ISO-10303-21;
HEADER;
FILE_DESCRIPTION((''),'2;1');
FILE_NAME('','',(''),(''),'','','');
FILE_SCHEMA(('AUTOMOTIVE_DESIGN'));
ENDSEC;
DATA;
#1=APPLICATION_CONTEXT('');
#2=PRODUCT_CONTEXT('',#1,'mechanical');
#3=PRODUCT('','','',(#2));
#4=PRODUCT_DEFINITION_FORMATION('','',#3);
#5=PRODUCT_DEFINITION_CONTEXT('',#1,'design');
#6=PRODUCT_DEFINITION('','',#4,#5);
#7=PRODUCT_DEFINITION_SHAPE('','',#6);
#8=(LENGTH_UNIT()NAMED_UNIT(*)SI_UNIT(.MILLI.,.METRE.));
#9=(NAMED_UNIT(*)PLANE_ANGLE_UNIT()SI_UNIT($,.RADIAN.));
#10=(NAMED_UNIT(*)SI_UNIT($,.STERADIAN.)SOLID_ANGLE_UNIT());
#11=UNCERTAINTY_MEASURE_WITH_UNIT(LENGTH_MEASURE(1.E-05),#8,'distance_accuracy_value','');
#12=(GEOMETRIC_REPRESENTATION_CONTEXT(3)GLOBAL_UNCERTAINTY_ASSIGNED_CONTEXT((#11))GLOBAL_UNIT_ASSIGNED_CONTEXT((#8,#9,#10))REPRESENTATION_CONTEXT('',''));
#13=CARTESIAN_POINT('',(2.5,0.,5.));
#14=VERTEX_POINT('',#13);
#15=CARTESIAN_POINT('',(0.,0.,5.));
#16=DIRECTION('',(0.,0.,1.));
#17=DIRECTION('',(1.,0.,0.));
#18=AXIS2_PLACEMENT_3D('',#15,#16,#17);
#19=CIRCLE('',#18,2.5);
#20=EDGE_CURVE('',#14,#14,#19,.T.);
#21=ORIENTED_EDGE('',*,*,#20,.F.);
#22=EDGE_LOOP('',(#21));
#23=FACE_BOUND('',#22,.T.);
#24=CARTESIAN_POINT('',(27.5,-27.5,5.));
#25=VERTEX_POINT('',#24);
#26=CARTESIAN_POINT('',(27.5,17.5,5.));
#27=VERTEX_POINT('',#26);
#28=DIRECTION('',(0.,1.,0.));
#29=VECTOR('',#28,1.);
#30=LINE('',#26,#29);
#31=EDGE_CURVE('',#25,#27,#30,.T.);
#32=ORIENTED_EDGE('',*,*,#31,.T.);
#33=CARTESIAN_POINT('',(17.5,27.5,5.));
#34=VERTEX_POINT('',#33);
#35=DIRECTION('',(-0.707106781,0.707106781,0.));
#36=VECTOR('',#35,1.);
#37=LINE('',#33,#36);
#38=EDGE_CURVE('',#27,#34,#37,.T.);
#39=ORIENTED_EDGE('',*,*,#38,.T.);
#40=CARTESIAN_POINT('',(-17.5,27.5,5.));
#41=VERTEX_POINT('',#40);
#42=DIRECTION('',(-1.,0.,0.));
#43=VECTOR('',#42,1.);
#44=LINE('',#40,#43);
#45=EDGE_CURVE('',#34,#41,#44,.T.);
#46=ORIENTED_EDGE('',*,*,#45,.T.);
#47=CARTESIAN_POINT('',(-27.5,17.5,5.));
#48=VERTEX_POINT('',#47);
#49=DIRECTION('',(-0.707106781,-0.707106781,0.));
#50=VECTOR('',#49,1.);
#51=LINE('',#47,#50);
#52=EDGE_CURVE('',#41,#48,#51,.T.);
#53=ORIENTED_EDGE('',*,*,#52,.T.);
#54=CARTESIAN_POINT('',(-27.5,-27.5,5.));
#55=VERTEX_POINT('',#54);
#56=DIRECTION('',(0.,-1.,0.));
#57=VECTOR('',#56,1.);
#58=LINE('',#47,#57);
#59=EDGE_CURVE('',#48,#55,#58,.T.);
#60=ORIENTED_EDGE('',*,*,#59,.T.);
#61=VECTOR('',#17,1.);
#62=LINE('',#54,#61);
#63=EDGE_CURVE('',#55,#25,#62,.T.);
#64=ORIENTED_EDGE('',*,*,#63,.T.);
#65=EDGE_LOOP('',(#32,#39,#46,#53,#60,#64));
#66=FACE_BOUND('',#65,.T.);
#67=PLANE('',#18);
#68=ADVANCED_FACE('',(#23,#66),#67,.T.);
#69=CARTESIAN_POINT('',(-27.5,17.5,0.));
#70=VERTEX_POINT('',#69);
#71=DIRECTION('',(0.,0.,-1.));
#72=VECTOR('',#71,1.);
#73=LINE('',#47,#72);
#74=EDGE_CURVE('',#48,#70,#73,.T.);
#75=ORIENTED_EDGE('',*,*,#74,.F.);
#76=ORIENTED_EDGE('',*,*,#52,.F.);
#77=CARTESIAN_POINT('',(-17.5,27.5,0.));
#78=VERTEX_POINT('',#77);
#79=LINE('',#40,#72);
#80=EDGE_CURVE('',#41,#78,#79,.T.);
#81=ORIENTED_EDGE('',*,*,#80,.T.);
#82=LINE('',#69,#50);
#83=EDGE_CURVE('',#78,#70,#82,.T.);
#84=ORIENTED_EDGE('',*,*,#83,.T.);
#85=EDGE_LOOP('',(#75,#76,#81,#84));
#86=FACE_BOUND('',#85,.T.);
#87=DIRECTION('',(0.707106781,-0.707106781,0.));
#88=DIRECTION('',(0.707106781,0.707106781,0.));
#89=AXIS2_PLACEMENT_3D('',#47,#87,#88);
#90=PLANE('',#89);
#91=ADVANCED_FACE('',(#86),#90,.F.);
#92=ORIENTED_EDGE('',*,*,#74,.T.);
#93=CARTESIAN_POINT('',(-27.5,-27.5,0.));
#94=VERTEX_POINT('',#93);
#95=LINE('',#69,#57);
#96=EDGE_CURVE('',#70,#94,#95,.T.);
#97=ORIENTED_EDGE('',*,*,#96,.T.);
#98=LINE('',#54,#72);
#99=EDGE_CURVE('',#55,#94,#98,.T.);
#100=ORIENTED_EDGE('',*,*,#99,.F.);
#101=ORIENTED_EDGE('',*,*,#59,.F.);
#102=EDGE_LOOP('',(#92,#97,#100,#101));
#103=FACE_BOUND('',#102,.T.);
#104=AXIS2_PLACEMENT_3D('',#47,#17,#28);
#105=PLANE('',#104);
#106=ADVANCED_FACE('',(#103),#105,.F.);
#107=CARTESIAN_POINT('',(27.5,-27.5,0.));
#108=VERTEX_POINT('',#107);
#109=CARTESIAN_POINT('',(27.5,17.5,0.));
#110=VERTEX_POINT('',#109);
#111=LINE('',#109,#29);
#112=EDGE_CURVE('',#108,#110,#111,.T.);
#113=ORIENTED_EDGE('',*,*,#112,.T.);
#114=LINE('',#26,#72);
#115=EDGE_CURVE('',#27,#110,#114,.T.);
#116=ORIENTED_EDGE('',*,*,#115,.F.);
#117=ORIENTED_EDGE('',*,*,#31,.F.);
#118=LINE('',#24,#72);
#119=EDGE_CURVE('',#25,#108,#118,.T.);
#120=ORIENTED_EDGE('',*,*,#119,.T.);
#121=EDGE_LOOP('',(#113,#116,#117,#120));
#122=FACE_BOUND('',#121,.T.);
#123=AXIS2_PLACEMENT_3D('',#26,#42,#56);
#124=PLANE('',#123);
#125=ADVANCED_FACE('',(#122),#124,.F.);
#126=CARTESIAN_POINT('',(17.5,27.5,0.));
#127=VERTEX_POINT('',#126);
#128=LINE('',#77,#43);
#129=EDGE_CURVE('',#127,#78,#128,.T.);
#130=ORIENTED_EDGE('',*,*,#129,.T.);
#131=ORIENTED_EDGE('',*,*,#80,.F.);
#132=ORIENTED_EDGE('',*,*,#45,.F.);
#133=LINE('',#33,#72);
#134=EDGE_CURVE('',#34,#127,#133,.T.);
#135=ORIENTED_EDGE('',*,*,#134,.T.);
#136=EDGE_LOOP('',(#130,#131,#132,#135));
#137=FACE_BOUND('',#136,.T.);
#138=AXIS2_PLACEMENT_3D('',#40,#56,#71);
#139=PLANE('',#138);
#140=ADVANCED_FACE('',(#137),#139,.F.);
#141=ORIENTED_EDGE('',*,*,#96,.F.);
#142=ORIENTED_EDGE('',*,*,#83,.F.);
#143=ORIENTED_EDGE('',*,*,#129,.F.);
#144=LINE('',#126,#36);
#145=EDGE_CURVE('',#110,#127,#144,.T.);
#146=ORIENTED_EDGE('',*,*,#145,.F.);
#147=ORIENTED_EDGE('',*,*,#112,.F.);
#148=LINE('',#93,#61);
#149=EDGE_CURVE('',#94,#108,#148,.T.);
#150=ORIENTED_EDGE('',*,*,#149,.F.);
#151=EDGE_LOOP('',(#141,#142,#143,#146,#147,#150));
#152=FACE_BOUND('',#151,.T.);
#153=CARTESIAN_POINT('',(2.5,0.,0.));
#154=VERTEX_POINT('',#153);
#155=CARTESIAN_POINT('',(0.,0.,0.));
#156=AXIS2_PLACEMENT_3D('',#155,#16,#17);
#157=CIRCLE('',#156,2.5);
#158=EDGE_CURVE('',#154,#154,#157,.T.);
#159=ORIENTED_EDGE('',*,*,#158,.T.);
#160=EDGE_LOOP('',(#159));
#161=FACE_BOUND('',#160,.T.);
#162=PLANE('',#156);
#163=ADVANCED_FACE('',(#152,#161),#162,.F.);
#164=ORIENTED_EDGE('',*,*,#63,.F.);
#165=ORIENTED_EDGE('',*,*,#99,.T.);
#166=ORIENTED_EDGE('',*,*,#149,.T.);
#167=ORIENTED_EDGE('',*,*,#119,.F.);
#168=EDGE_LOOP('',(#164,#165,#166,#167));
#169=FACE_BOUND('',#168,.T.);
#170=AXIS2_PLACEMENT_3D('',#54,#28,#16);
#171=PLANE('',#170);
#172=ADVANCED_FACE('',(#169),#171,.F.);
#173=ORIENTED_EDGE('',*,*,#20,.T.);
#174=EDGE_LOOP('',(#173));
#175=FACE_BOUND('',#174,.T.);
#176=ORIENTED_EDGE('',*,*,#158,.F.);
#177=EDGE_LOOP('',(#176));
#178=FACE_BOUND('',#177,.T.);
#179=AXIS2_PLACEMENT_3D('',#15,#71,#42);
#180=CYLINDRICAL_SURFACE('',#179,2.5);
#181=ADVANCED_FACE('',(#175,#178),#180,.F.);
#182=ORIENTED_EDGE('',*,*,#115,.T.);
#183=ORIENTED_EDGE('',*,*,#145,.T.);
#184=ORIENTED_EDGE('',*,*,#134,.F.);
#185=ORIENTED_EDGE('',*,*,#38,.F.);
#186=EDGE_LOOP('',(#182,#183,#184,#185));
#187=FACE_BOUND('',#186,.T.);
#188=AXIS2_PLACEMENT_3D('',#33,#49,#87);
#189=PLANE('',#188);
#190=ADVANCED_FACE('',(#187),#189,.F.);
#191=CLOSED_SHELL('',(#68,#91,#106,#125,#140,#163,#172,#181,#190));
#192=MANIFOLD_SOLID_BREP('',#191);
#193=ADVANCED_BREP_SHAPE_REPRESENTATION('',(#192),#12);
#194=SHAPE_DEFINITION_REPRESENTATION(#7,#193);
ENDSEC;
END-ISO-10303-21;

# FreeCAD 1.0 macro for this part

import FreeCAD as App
import Part
import Sketcher
from FreeCAD import Vector
Q = App.Units.Quantity

doc = App.newDocument("Part")
body = doc.addObject("PartDesign::Body", "Body")

sketch1 = body.newObject("Sketcher::SketchObject", "Sketch")
sketch1.AttachmentSupport = (doc.getObject("XY_Plane"), [""])
sketch1.MapMode = "FlatFace"
sketch1.addGeometry([
    Part.LineSegment(Vector(-17.5, 27.5, 0), Vector(-27.5, 17.5, 0)),
    Part.LineSegment(Vector(-27.5, 17.5, 0), Vector(-27.5, -27.5, 0)),
    Part.LineSegment(Vector(-27.5, -27.5, 0), Vector(27.5, -27.5, 0)),
    Part.LineSegment(Vector(27.5, -27.5, 0), Vector(27.5, 17.5, 0)),
    Part.LineSegment(Vector(27.5, 17.5, 0), Vector(17.5, 27.5, 0)),
    Part.LineSegment(Vector(17.5, 27.5, 0), Vector(-17.5, 27.5, 0)),
    Part.Circle(Vector(0, 0, 0), Vector(0, 0, 1), 2.5),
], False)
sketch1.addConstraint([
    Sketcher.Constraint("Coincident", 0, 2, 1, 1),
    Sketcher.Constraint("Coincident", 1, 2, 2, 1),
    Sketcher.Constraint("Coincident", 2, 2, 3, 1),
    Sketcher.Constraint("Coincident", 3, 2, 4, 1),
    Sketcher.Constraint("Coincident", 4, 2, 5, 1),
    Sketcher.Constraint("Coincident", 5, 2, 0, 1),
    Sketcher.Constraint("Vertical", 1),
    Sketcher.Constraint("Horizontal", 2),
    Sketcher.Constraint("Vertical", 3),
    Sketcher.Constraint("Horizontal", 5),
    Sketcher.Constraint("Coincident", 6, 3, -1, 1),
    Sketcher.Constraint("Symmetric", 0, 2, 3, 2, -2),
    Sketcher.Constraint("Perpendicular", 0, 4),
    Sketcher.Constraint("Equal", 0, 4),
    Sketcher.Constraint("Diameter", 6, Q("5 mm")),
    Sketcher.Constraint("DistanceX", 2, 1, 2, 2, Q("55 mm")),
    Sketcher.Constraint("DistanceX", 5, 2, 5, 1, Q("35 mm")),
    Sketcher.Constraint("DistanceY", 1, 2, 1, 1, Q("45 mm")),
    Sketcher.Constraint("DistanceY", -1, 1, 0, 2, Q("17.5 mm")),
])
pad1 = body.newObject("PartDesign::Pad", "Pad")
pad1.Profile = sketch1
pad1.Length = 5

doc.recompute()
